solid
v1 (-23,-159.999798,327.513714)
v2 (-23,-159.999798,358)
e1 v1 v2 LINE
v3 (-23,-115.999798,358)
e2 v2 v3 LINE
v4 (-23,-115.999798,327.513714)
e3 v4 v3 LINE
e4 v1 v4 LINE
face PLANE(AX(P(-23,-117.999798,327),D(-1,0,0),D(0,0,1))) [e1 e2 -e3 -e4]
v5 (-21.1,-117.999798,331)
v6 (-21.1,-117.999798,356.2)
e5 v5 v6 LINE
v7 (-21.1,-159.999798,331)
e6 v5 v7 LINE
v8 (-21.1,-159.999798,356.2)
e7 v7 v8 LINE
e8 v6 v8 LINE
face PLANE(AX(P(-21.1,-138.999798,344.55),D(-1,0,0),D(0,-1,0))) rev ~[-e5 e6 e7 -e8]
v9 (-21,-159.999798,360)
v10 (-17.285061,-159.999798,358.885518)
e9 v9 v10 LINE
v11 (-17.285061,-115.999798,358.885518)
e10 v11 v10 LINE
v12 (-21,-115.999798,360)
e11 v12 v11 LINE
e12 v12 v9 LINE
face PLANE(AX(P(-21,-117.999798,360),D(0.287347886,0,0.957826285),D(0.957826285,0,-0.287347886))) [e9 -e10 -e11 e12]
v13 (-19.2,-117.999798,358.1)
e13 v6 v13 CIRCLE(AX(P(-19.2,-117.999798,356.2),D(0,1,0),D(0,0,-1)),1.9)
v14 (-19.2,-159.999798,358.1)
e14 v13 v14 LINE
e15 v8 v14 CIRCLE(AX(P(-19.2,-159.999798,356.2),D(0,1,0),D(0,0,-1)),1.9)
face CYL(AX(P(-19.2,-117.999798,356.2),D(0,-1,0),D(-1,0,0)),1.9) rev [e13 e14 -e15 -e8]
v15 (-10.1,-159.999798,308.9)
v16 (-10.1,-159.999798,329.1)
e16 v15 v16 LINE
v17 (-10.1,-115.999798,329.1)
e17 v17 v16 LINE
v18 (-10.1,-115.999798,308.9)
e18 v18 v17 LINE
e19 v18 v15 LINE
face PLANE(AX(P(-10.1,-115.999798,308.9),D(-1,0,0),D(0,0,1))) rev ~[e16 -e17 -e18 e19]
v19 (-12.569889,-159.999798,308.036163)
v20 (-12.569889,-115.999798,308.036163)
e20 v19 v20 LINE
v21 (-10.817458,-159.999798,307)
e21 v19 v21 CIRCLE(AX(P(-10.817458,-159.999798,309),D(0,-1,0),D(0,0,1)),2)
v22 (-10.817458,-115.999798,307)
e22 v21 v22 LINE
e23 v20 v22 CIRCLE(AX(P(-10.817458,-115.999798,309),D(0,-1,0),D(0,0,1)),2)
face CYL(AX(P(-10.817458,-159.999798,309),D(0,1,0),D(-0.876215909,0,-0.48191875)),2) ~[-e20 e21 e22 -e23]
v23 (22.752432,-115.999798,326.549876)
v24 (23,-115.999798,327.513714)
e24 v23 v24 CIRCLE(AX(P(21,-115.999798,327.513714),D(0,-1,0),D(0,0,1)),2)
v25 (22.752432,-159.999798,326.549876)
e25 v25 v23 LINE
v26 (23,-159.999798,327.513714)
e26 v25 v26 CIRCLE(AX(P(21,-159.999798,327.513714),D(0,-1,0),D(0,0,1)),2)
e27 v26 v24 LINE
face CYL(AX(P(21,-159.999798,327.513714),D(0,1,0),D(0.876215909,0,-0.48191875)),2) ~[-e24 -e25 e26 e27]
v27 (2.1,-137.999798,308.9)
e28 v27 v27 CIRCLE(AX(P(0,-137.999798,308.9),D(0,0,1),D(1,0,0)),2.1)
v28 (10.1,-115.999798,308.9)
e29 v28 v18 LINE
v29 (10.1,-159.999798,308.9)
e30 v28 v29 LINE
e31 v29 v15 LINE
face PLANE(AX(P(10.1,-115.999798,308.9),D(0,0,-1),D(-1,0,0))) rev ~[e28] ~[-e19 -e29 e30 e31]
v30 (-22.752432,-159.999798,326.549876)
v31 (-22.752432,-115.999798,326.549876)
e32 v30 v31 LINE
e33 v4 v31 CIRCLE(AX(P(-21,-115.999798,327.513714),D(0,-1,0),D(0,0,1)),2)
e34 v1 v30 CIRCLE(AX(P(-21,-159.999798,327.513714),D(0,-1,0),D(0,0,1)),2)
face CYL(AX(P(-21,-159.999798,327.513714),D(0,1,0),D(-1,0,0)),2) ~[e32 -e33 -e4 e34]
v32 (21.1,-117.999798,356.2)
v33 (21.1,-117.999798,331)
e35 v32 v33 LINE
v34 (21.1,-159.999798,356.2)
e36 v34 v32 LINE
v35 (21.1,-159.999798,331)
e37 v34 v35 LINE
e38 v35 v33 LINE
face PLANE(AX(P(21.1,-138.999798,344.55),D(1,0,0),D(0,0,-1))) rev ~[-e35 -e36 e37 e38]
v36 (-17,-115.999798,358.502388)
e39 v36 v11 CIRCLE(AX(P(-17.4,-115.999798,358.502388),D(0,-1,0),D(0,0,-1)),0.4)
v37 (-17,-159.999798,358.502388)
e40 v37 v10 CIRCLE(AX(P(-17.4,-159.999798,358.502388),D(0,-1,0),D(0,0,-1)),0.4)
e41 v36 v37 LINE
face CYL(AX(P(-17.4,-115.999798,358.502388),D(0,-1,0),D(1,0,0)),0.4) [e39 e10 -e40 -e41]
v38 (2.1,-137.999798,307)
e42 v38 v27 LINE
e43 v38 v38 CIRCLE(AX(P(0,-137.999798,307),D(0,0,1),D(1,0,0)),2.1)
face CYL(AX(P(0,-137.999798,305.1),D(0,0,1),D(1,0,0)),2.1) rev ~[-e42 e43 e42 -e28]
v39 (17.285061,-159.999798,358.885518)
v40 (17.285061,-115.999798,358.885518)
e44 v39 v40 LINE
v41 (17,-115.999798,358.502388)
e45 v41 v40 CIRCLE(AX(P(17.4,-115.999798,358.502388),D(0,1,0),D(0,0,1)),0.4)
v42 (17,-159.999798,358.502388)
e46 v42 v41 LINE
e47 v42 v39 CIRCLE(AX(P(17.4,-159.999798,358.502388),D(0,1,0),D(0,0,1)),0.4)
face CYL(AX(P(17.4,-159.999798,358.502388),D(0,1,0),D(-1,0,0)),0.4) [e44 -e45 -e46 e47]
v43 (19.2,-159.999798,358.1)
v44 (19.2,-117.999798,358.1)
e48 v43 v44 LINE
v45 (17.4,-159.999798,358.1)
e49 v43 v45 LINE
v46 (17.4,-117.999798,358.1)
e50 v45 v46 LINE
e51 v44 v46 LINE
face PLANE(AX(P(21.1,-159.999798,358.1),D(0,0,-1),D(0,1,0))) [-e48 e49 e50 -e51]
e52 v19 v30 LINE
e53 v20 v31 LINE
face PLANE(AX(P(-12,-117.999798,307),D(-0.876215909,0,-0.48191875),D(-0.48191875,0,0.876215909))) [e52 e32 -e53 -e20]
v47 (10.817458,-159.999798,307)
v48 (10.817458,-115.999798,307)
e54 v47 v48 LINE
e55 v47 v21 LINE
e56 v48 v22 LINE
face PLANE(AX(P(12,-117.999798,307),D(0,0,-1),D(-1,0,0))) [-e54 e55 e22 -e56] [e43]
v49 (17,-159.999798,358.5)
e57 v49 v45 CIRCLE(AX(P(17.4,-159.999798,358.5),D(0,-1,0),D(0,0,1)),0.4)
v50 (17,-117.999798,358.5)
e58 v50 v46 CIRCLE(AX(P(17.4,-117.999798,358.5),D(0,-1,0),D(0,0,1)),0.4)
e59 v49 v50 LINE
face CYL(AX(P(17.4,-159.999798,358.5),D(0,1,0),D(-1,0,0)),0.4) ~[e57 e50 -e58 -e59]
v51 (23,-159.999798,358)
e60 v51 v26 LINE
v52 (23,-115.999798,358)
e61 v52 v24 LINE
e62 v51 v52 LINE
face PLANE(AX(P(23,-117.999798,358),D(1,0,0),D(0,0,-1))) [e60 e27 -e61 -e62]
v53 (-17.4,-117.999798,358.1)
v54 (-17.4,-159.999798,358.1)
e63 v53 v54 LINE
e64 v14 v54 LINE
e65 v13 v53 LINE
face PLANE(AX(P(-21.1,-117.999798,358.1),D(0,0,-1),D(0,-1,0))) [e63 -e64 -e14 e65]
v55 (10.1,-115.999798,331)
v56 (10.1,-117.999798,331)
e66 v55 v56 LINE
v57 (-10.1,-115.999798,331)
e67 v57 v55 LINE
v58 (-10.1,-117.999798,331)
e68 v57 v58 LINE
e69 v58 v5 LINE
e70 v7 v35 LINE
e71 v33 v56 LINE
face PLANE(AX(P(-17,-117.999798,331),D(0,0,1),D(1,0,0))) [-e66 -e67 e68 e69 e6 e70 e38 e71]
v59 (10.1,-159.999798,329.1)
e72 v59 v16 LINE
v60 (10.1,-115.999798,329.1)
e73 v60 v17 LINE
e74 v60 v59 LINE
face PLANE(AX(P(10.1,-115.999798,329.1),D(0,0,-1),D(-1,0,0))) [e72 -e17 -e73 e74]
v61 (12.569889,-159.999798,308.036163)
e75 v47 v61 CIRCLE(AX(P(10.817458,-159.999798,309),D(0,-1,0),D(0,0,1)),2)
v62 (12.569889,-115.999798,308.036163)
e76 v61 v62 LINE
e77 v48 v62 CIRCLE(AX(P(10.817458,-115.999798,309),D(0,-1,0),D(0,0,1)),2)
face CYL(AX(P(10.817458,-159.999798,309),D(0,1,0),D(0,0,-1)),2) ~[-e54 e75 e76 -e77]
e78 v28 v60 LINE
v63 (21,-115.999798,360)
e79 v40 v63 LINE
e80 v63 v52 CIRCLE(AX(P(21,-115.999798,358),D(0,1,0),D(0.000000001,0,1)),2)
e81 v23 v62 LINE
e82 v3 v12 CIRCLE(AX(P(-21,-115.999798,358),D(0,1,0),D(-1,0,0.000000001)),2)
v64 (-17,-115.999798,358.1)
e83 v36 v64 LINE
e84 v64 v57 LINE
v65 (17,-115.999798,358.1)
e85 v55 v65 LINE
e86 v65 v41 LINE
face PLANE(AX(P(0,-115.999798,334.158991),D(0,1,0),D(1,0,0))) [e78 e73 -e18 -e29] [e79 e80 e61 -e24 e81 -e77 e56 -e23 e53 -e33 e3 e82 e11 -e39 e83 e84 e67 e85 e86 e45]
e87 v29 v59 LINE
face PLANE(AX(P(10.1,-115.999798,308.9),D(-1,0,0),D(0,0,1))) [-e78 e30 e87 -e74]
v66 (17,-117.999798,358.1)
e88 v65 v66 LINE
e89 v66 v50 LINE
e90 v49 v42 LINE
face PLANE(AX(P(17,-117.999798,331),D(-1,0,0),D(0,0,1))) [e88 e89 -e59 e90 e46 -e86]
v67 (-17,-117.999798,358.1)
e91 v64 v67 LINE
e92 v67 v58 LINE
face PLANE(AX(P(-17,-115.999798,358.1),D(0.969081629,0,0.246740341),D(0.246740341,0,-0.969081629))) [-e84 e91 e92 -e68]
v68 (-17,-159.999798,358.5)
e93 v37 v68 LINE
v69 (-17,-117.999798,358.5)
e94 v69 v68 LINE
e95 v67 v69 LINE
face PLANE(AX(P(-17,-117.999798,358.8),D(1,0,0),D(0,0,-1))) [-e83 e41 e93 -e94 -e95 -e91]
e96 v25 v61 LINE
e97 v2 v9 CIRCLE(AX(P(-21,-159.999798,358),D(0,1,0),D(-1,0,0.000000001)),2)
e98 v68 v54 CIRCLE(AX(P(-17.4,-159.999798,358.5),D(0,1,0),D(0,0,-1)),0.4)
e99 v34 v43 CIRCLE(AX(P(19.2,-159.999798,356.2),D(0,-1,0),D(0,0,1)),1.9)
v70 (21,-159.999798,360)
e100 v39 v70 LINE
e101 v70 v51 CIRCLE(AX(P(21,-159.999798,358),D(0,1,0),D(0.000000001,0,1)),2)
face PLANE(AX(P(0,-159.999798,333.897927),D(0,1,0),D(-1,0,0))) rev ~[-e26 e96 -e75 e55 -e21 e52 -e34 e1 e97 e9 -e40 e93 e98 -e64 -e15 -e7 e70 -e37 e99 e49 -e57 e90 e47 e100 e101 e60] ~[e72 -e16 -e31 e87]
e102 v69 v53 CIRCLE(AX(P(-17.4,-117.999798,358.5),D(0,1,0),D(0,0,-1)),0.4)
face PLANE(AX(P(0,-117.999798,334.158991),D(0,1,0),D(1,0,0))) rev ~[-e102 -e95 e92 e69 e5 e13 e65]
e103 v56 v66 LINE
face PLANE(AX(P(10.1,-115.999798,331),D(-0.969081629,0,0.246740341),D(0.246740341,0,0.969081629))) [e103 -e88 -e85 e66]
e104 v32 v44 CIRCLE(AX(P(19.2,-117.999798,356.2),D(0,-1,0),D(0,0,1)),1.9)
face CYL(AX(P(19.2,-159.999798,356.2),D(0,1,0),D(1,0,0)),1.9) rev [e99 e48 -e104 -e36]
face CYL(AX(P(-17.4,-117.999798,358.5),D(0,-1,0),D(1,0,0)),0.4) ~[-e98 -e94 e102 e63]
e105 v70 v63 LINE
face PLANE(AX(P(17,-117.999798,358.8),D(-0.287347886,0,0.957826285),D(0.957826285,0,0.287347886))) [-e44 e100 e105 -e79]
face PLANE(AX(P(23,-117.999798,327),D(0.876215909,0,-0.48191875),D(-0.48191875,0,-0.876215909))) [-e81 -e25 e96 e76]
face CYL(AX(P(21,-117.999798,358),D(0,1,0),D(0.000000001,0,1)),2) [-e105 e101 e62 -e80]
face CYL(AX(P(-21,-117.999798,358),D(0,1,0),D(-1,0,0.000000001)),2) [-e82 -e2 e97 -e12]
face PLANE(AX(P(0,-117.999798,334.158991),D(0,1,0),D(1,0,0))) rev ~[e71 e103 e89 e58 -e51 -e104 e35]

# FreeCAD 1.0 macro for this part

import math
import FreeCAD as App
import Part
import Sketcher

V = App.Vector
Q = App.Units.Quantity


def edges_at(feature, points):
    """Names of the edges that pass closest to the given points."""
    edges = feature.Shape.Edges
    near = lambda p: min(range(len(edges)), key=lambda i: edges[i].distToShape(Part.Vertex(*p))[0])
    return sorted({f"Edge{near(p) + 1}" for p in points})


def add_polygon(sketch, points):
    """Adds a closed chain of lines whose ends are joined by coincident constraints."""
    first, n = sketch.GeometryCount, len(points)
    for a, b in zip(points, points[1:] + points[:1]):
        sketch.addGeometry(Part.LineSegment(App.Vector(*a, 0), App.Vector(*b, 0)), False)
    for i in range(n):
        sketch.addConstraint(Sketcher.Constraint("Coincident", first + i, 2, first + (i + 1) % n, 1))

doc = App.newDocument("Part")
body = doc.addObject("PartDesign::Body", "Body")

sketch1 = body.newObject("Sketcher::SketchObject", "Sketch")
sketch1.AttachmentSupport = (doc.getObject("XZ_Plane"), [""])
sketch1.MapMode = "FlatFace"
sketch1.AttachmentOffset = App.Placement(V(0, 0, 115.999798), App.Rotation())
sketch1.addGeometry([
    Part.LineSegment(V(10.1, 331, 0), V(17, 358.1, 0)),
    Part.LineSegment(V(17, 358.1, 0), V(17, 358.8, 0)),
    Part.LineSegment(V(17, 358.8, 0), V(21, 360, 0)),
    Part.ArcOfCircle(Part.Circle(V(21, 358, 0), V(0, 0, 1), 2), math.radians(0), math.radians(90)),
    Part.LineSegment(V(23, 358, 0), V(23, 327, 0)),
    Part.LineSegment(V(23, 327, 0), V(12, 307, 0)),
    Part.LineSegment(V(12, 307, 0), V(-12, 307, 0)),
    Part.LineSegment(V(-12, 307, 0), V(-23, 327, 0)),
    Part.LineSegment(V(-23, 327, 0), V(-23, 358, 0)),
    Part.ArcOfCircle(Part.Circle(V(-21, 358, 0), V(0, 0, 1), 2), math.radians(90), math.radians(180)),
    Part.LineSegment(V(-21, 360, 0), V(-17, 358.8, 0)),
    Part.LineSegment(V(-17, 358.8, 0), V(-17, 358.1, 0)),
    Part.LineSegment(V(-17, 358.1, 0), V(-10.1, 331, 0)),
    Part.LineSegment(V(-10.1, 331, 0), V(10.1, 331, 0)),
], False)
sketch1.addConstraint([
    Sketcher.Constraint("Coincident", 0, 2, 1, 1),
    Sketcher.Constraint("Coincident", 1, 2, 2, 1),
    Sketcher.Constraint("Coincident", 2, 2, 3, 2),
    Sketcher.Constraint("Tangent", 3, 1, 4, 1),
    Sketcher.Constraint("Coincident", 4, 2, 5, 1),
    Sketcher.Constraint("Coincident", 5, 2, 6, 1),
    Sketcher.Constraint("Coincident", 6, 2, 7, 1),
    Sketcher.Constraint("Coincident", 7, 2, 8, 1),
    Sketcher.Constraint("Tangent", 8, 2, 9, 2),
    Sketcher.Constraint("Coincident", 9, 1, 10, 1),
    Sketcher.Constraint("Coincident", 10, 2, 11, 1),
    Sketcher.Constraint("Coincident", 11, 2, 12, 1),
    Sketcher.Constraint("Coincident", 12, 2, 13, 1),
    Sketcher.Constraint("Coincident", 13, 2, 0, 1),
    Sketcher.Constraint("Vertical", 1),
    Sketcher.Constraint("Vertical", 4),
    Sketcher.Constraint("Horizontal", 6),
    Sketcher.Constraint("Vertical", 8),
    Sketcher.Constraint("Vertical", 11),
    Sketcher.Constraint("Horizontal", 13),
    Sketcher.Constraint("Equal", 3, 9),
    Sketcher.Constraint("Symmetric", 3, 3, 9, 3, -2),
    Sketcher.Constraint("Symmetric", 1, 2, 10, 2, -2),
    Sketcher.Constraint("Horizontal", 4, 2, 7, 2),
    Sketcher.Constraint("Horizontal", 0, 2, 11, 2),
    Sketcher.Constraint("Vertical", 3, 3, 2, 2),
    Sketcher.Constraint("Equal", 5, 7),
    Sketcher.Constraint("Equal", 2, 10),
    Sketcher.Constraint("Equal", 0, 12),
    Sketcher.Constraint("Radius", 3, Q("2 mm")),
    Sketcher.Constraint("DistanceX", 6, 2, 6, 1, Q("24 mm")),
    Sketcher.Constraint("DistanceY", 4, 2, 4, 1, Q("31 mm")),
    Sketcher.Constraint("DistanceX", 13, 1, 13, 2, Q("20.2 mm")),
    Sketcher.Constraint("DistanceY", 1, 1, 1, 2, Q("0.7 mm")),
    Sketcher.Constraint("DistanceX", -1, 1, 3, 3, Q("21 mm")),
    Sketcher.Constraint("DistanceY", -1, 1, 3, 3, Q("358 mm")),
    Sketcher.Constraint("DistanceX", -1, 1, 0, 2, Q("17 mm")),
    Sketcher.Constraint("DistanceY", -1, 1, 5, 2, Q("307 mm")),
    Sketcher.Constraint("DistanceY", -1, 1, 12, 2, Q("331 mm")),
    Sketcher.Constraint("DistanceY", -1, 1, 0, 2, Q("358.1 mm")),
])
pad1 = body.newObject("PartDesign::Pad", "Pad")
pad1.Profile = sketch1
pad1.Length = 2

sketch2 = body.newObject("Sketcher::SketchObject", "Sketch001")
sketch2.AttachmentSupport = (doc.getObject("XZ_Plane"), [""])
sketch2.MapMode = "FlatFace"
sketch2.AttachmentOffset = App.Placement(V(0, 0, 117.999798), App.Rotation())
sketch2.addGeometry([
    Part.LineSegment(V(17, 331, 0), V(-17, 331, 0)),
    Part.LineSegment(V(-17, 331, 0), V(-17, 358.8, 0)),
    Part.LineSegment(V(-17, 358.8, 0), V(-21, 360, 0)),
    Part.ArcOfCircle(Part.Circle(V(-21, 358, 0), V(0, 0, 1), 2), math.radians(90), math.radians(180)),
    Part.LineSegment(V(-23, 358, 0), V(-23, 327, 0)),
    Part.LineSegment(V(-23, 327, 0), V(-12, 307, 0)),
    Part.LineSegment(V(-12, 307, 0), V(12, 307, 0)),
    Part.LineSegment(V(12, 307, 0), V(23, 327, 0)),
    Part.LineSegment(V(23, 327, 0), V(23, 358, 0)),
    Part.ArcOfCircle(Part.Circle(V(21, 358, 0), V(0, 0, 1), 2), math.radians(0), math.radians(90)),
    Part.LineSegment(V(21, 360, 0), V(17, 358.8, 0)),
    Part.LineSegment(V(17, 358.8, 0), V(17, 331, 0)),
], False)
sketch2.addConstraint([
    Sketcher.Constraint("Coincident", 0, 2, 1, 1),
    Sketcher.Constraint("Coincident", 1, 2, 2, 1),
    Sketcher.Constraint("Coincident", 2, 2, 3, 1),
    Sketcher.Constraint("Tangent", 3, 2, 4, 1),
    Sketcher.Constraint("Coincident", 4, 2, 5, 1),
    Sketcher.Constraint("Coincident", 5, 2, 6, 1),
    Sketcher.Constraint("Coincident", 6, 2, 7, 1),
    Sketcher.Constraint("Coincident", 7, 2, 8, 1),
    Sketcher.Constraint("Tangent", 8, 2, 9, 1),
    Sketcher.Constraint("Coincident", 9, 2, 10, 1),
    Sketcher.Constraint("Coincident", 10, 2, 11, 1),
    Sketcher.Constraint("Coincident", 11, 2, 0, 1),
    Sketcher.Constraint("Horizontal", 0),
    Sketcher.Constraint("Vertical", 1),
    Sketcher.Constraint("Vertical", 4),
    Sketcher.Constraint("Horizontal", 6),
    Sketcher.Constraint("Vertical", 8),
    Sketcher.Constraint("Vertical", 11),
    Sketcher.Constraint("Equal", 3, 9),
    Sketcher.Constraint("Symmetric", 3, 3, 9, 3, -2),
    Sketcher.Constraint("Symmetric", 1, 2, 10, 2, -2),
    Sketcher.Constraint("Horizontal", 4, 2, 7, 2),
    Sketcher.Constraint("Vertical", 3, 3, 2, 2),
    Sketcher.Constraint("Equal", 5, 7),
    Sketcher.Constraint("Equal", 2, 10),
    Sketcher.Constraint("Radius", 3, Q("2 mm")),
    Sketcher.Constraint("DistanceX", 0, 2, 0, 1, Q("34 mm")),
    Sketcher.Constraint("DistanceX", 6, 1, 6, 2, Q("24 mm")),
    Sketcher.Constraint("DistanceY", 4, 2, 4, 1, Q("31 mm")),
    Sketcher.Constraint("DistanceY", 1, 1, 1, 2, Q("27.8 mm")),
    Sketcher.Constraint("DistanceX", 3, 3, -1, 1, Q("21 mm")),
    Sketcher.Constraint("DistanceY", -1, 1, 3, 3, Q("358 mm")),
    Sketcher.Constraint("DistanceY", -1, 1, 0, 2, Q("331 mm")),
    Sketcher.Constraint("DistanceY", -1, 1, 5, 2, Q("307 mm")),
])
pad2 = body.newObject("PartDesign::Pad", "Pad001")
pad2.Profile = sketch2
pad2.Length = 42

sketch3 = body.newObject("Sketcher::SketchObject", "Sketch002")
sketch3.AttachmentSupport = (doc.getObject("YZ_Plane"), [""])
sketch3.MapMode = "FlatFace"
sketch3.AttachmentOffset = App.Placement(V(0, 0, -21.1), App.Rotation())
add_polygon(sketch3, [(-118, 358), (-118, 331), (-160, 331), (-160, 358)])
sketch3.addConstraint([
    Sketcher.Constraint("Vertical", 0),
    Sketcher.Constraint("Horizontal", 1),
    Sketcher.Constraint("Vertical", 2),
    Sketcher.Constraint("Horizontal", 3),
    Sketcher.Constraint("DistanceX", 1, 2, 1, 1, Q("42 mm")),
    Sketcher.Constraint("DistanceY", 0, 2, 0, 1, Q("27.1 mm")),
    Sketcher.Constraint("DistanceY", -1, 1, 0, 2, Q("331 mm")),
    Sketcher.Constraint("DistanceX", 0, 2, -1, 1, Q("117.999798 mm")),
])
pocket1 = body.newObject("PartDesign::Pocket", "Pocket")
pocket1.Profile = sketch3
pocket1.Type = "UpToFirst"
pocket1.Reversed = True

sketch4 = body.newObject("Sketcher::SketchObject", "Sketch003")
sketch4.AttachmentSupport = (doc.getObject("YZ_Plane"), [""])
sketch4.MapMode = "FlatFace"
sketch4.AttachmentOffset = App.Placement(V(0, 0, 21.1), App.Rotation())
add_polygon(sketch4, [(-118, 358), (-160, 358), (-160, 331), (-118, 331)])
sketch4.addConstraint([
    Sketcher.Constraint("Horizontal", 0),
    Sketcher.Constraint("Vertical", 1),
    Sketcher.Constraint("Horizontal", 2),
    Sketcher.Constraint("Vertical", 3),
    Sketcher.Constraint("DistanceX", 0, 2, 0, 1, Q("42 mm")),
    Sketcher.Constraint("DistanceY", 1, 2, 1, 1, Q("27.1 mm")),
    Sketcher.Constraint("DistanceY", -1, 1, 1, 2, Q("331 mm")),
    Sketcher.Constraint("DistanceX", 0, 2, -1, 1, Q("159.999798 mm")),
])
pocket2 = body.newObject("PartDesign::Pocket", "Pocket001")
pocket2.Profile = sketch4
pocket2.Type = "UpToFirst"

sketch5 = body.newObject("Sketcher::SketchObject", "Sketch004")
sketch5.AttachmentSupport = (doc.getObject("XZ_Plane"), [""])
sketch5.MapMode = "FlatFace"
sketch5.AttachmentOffset = App.Placement(V(0, 0, 115.999798), App.Rotation())
add_polygon(sketch5, [(10, 329), (10, 309), (-10, 309), (-10, 329)])
sketch5.addConstraint([
    Sketcher.Constraint("Vertical", 0),
    Sketcher.Constraint("Horizontal", 1),
    Sketcher.Constraint("Vertical", 2),
    Sketcher.Constraint("Horizontal", 3),
    Sketcher.Constraint("Equal", 3, 0),
    Sketcher.Constraint("DistanceX", 1, 2, 1, 1, Q("20.2 mm")),
    Sketcher.Constraint("DistanceX", -1, 1, 0, 2, Q("10.1 mm")),
    Sketcher.Constraint("DistanceY", -1, 1, 0, 2, Q("308.9 mm")),
])
pocket3 = body.newObject("PartDesign::Pocket", "Pocket002")
pocket3.Profile = sketch5
pocket3.Type = "ThroughAll"
pocket3.Reversed = True

sketch6 = body.newObject("Sketcher::SketchObject", "Sketch005")
sketch6.AttachmentSupport = (doc.getObject("XY_Plane"), [""])
sketch6.MapMode = "FlatFace"
sketch6.AttachmentOffset = App.Placement(V(0, 0, 307), App.Rotation())
sketch6.addGeometry(Part.Circle(V(0, -137.999798, 0), V(0, 0, 1), 2.1), False)
sketch6.addConstraint([
    Sketcher.Constraint("PointOnObject", 0, 3, -2),
    Sketcher.Constraint("Diameter", 0, Q("4.2 mm")),
    Sketcher.Constraint("DistanceY", 0, 3, -1, 1, Q("137.999798 mm")),
])
doc.recompute()
hole = body.newObject("PartDesign::Hole", "Hole")
hole.Profile = sketch6
hole.ThreadType = "None"
hole.Diameter = 4.2
hole.DepthType = "Dimension"
hole.Depth = 1.9
hole.DrillPoint = "Flat"
hole.Reversed = True
doc.recompute()

fillet = body.newObject("PartDesign::Fillet", "Fillet")
fillet.Base = (hole, edges_at(hole, [
    (-17, -138, 358.8),
    (17, -138, 358.8),
    (-17, -139, 358.1),
    (17, -139, 358.1),
]))
fillet.Radius = 0.4
doc.recompute()

fillet2 = body.newObject("PartDesign::Fillet", "Fillet001")
fillet2.Base = (fillet, edges_at(fillet, [(-21.1, -139, 358.1), (21.1, -139, 358.1)]))
fillet2.Radius = 1.9
doc.recompute()

fillet3 = body.newObject("PartDesign::Fillet", "Fillet002")
fillet3.Base = (fillet2, edges_at(fillet2, [
    (-23, -138, 327),
    (-12, -138, 307),
    (12, -138, 307),
    (23, -138, 327),
]))
fillet3.Radius = 2

doc.recompute()
